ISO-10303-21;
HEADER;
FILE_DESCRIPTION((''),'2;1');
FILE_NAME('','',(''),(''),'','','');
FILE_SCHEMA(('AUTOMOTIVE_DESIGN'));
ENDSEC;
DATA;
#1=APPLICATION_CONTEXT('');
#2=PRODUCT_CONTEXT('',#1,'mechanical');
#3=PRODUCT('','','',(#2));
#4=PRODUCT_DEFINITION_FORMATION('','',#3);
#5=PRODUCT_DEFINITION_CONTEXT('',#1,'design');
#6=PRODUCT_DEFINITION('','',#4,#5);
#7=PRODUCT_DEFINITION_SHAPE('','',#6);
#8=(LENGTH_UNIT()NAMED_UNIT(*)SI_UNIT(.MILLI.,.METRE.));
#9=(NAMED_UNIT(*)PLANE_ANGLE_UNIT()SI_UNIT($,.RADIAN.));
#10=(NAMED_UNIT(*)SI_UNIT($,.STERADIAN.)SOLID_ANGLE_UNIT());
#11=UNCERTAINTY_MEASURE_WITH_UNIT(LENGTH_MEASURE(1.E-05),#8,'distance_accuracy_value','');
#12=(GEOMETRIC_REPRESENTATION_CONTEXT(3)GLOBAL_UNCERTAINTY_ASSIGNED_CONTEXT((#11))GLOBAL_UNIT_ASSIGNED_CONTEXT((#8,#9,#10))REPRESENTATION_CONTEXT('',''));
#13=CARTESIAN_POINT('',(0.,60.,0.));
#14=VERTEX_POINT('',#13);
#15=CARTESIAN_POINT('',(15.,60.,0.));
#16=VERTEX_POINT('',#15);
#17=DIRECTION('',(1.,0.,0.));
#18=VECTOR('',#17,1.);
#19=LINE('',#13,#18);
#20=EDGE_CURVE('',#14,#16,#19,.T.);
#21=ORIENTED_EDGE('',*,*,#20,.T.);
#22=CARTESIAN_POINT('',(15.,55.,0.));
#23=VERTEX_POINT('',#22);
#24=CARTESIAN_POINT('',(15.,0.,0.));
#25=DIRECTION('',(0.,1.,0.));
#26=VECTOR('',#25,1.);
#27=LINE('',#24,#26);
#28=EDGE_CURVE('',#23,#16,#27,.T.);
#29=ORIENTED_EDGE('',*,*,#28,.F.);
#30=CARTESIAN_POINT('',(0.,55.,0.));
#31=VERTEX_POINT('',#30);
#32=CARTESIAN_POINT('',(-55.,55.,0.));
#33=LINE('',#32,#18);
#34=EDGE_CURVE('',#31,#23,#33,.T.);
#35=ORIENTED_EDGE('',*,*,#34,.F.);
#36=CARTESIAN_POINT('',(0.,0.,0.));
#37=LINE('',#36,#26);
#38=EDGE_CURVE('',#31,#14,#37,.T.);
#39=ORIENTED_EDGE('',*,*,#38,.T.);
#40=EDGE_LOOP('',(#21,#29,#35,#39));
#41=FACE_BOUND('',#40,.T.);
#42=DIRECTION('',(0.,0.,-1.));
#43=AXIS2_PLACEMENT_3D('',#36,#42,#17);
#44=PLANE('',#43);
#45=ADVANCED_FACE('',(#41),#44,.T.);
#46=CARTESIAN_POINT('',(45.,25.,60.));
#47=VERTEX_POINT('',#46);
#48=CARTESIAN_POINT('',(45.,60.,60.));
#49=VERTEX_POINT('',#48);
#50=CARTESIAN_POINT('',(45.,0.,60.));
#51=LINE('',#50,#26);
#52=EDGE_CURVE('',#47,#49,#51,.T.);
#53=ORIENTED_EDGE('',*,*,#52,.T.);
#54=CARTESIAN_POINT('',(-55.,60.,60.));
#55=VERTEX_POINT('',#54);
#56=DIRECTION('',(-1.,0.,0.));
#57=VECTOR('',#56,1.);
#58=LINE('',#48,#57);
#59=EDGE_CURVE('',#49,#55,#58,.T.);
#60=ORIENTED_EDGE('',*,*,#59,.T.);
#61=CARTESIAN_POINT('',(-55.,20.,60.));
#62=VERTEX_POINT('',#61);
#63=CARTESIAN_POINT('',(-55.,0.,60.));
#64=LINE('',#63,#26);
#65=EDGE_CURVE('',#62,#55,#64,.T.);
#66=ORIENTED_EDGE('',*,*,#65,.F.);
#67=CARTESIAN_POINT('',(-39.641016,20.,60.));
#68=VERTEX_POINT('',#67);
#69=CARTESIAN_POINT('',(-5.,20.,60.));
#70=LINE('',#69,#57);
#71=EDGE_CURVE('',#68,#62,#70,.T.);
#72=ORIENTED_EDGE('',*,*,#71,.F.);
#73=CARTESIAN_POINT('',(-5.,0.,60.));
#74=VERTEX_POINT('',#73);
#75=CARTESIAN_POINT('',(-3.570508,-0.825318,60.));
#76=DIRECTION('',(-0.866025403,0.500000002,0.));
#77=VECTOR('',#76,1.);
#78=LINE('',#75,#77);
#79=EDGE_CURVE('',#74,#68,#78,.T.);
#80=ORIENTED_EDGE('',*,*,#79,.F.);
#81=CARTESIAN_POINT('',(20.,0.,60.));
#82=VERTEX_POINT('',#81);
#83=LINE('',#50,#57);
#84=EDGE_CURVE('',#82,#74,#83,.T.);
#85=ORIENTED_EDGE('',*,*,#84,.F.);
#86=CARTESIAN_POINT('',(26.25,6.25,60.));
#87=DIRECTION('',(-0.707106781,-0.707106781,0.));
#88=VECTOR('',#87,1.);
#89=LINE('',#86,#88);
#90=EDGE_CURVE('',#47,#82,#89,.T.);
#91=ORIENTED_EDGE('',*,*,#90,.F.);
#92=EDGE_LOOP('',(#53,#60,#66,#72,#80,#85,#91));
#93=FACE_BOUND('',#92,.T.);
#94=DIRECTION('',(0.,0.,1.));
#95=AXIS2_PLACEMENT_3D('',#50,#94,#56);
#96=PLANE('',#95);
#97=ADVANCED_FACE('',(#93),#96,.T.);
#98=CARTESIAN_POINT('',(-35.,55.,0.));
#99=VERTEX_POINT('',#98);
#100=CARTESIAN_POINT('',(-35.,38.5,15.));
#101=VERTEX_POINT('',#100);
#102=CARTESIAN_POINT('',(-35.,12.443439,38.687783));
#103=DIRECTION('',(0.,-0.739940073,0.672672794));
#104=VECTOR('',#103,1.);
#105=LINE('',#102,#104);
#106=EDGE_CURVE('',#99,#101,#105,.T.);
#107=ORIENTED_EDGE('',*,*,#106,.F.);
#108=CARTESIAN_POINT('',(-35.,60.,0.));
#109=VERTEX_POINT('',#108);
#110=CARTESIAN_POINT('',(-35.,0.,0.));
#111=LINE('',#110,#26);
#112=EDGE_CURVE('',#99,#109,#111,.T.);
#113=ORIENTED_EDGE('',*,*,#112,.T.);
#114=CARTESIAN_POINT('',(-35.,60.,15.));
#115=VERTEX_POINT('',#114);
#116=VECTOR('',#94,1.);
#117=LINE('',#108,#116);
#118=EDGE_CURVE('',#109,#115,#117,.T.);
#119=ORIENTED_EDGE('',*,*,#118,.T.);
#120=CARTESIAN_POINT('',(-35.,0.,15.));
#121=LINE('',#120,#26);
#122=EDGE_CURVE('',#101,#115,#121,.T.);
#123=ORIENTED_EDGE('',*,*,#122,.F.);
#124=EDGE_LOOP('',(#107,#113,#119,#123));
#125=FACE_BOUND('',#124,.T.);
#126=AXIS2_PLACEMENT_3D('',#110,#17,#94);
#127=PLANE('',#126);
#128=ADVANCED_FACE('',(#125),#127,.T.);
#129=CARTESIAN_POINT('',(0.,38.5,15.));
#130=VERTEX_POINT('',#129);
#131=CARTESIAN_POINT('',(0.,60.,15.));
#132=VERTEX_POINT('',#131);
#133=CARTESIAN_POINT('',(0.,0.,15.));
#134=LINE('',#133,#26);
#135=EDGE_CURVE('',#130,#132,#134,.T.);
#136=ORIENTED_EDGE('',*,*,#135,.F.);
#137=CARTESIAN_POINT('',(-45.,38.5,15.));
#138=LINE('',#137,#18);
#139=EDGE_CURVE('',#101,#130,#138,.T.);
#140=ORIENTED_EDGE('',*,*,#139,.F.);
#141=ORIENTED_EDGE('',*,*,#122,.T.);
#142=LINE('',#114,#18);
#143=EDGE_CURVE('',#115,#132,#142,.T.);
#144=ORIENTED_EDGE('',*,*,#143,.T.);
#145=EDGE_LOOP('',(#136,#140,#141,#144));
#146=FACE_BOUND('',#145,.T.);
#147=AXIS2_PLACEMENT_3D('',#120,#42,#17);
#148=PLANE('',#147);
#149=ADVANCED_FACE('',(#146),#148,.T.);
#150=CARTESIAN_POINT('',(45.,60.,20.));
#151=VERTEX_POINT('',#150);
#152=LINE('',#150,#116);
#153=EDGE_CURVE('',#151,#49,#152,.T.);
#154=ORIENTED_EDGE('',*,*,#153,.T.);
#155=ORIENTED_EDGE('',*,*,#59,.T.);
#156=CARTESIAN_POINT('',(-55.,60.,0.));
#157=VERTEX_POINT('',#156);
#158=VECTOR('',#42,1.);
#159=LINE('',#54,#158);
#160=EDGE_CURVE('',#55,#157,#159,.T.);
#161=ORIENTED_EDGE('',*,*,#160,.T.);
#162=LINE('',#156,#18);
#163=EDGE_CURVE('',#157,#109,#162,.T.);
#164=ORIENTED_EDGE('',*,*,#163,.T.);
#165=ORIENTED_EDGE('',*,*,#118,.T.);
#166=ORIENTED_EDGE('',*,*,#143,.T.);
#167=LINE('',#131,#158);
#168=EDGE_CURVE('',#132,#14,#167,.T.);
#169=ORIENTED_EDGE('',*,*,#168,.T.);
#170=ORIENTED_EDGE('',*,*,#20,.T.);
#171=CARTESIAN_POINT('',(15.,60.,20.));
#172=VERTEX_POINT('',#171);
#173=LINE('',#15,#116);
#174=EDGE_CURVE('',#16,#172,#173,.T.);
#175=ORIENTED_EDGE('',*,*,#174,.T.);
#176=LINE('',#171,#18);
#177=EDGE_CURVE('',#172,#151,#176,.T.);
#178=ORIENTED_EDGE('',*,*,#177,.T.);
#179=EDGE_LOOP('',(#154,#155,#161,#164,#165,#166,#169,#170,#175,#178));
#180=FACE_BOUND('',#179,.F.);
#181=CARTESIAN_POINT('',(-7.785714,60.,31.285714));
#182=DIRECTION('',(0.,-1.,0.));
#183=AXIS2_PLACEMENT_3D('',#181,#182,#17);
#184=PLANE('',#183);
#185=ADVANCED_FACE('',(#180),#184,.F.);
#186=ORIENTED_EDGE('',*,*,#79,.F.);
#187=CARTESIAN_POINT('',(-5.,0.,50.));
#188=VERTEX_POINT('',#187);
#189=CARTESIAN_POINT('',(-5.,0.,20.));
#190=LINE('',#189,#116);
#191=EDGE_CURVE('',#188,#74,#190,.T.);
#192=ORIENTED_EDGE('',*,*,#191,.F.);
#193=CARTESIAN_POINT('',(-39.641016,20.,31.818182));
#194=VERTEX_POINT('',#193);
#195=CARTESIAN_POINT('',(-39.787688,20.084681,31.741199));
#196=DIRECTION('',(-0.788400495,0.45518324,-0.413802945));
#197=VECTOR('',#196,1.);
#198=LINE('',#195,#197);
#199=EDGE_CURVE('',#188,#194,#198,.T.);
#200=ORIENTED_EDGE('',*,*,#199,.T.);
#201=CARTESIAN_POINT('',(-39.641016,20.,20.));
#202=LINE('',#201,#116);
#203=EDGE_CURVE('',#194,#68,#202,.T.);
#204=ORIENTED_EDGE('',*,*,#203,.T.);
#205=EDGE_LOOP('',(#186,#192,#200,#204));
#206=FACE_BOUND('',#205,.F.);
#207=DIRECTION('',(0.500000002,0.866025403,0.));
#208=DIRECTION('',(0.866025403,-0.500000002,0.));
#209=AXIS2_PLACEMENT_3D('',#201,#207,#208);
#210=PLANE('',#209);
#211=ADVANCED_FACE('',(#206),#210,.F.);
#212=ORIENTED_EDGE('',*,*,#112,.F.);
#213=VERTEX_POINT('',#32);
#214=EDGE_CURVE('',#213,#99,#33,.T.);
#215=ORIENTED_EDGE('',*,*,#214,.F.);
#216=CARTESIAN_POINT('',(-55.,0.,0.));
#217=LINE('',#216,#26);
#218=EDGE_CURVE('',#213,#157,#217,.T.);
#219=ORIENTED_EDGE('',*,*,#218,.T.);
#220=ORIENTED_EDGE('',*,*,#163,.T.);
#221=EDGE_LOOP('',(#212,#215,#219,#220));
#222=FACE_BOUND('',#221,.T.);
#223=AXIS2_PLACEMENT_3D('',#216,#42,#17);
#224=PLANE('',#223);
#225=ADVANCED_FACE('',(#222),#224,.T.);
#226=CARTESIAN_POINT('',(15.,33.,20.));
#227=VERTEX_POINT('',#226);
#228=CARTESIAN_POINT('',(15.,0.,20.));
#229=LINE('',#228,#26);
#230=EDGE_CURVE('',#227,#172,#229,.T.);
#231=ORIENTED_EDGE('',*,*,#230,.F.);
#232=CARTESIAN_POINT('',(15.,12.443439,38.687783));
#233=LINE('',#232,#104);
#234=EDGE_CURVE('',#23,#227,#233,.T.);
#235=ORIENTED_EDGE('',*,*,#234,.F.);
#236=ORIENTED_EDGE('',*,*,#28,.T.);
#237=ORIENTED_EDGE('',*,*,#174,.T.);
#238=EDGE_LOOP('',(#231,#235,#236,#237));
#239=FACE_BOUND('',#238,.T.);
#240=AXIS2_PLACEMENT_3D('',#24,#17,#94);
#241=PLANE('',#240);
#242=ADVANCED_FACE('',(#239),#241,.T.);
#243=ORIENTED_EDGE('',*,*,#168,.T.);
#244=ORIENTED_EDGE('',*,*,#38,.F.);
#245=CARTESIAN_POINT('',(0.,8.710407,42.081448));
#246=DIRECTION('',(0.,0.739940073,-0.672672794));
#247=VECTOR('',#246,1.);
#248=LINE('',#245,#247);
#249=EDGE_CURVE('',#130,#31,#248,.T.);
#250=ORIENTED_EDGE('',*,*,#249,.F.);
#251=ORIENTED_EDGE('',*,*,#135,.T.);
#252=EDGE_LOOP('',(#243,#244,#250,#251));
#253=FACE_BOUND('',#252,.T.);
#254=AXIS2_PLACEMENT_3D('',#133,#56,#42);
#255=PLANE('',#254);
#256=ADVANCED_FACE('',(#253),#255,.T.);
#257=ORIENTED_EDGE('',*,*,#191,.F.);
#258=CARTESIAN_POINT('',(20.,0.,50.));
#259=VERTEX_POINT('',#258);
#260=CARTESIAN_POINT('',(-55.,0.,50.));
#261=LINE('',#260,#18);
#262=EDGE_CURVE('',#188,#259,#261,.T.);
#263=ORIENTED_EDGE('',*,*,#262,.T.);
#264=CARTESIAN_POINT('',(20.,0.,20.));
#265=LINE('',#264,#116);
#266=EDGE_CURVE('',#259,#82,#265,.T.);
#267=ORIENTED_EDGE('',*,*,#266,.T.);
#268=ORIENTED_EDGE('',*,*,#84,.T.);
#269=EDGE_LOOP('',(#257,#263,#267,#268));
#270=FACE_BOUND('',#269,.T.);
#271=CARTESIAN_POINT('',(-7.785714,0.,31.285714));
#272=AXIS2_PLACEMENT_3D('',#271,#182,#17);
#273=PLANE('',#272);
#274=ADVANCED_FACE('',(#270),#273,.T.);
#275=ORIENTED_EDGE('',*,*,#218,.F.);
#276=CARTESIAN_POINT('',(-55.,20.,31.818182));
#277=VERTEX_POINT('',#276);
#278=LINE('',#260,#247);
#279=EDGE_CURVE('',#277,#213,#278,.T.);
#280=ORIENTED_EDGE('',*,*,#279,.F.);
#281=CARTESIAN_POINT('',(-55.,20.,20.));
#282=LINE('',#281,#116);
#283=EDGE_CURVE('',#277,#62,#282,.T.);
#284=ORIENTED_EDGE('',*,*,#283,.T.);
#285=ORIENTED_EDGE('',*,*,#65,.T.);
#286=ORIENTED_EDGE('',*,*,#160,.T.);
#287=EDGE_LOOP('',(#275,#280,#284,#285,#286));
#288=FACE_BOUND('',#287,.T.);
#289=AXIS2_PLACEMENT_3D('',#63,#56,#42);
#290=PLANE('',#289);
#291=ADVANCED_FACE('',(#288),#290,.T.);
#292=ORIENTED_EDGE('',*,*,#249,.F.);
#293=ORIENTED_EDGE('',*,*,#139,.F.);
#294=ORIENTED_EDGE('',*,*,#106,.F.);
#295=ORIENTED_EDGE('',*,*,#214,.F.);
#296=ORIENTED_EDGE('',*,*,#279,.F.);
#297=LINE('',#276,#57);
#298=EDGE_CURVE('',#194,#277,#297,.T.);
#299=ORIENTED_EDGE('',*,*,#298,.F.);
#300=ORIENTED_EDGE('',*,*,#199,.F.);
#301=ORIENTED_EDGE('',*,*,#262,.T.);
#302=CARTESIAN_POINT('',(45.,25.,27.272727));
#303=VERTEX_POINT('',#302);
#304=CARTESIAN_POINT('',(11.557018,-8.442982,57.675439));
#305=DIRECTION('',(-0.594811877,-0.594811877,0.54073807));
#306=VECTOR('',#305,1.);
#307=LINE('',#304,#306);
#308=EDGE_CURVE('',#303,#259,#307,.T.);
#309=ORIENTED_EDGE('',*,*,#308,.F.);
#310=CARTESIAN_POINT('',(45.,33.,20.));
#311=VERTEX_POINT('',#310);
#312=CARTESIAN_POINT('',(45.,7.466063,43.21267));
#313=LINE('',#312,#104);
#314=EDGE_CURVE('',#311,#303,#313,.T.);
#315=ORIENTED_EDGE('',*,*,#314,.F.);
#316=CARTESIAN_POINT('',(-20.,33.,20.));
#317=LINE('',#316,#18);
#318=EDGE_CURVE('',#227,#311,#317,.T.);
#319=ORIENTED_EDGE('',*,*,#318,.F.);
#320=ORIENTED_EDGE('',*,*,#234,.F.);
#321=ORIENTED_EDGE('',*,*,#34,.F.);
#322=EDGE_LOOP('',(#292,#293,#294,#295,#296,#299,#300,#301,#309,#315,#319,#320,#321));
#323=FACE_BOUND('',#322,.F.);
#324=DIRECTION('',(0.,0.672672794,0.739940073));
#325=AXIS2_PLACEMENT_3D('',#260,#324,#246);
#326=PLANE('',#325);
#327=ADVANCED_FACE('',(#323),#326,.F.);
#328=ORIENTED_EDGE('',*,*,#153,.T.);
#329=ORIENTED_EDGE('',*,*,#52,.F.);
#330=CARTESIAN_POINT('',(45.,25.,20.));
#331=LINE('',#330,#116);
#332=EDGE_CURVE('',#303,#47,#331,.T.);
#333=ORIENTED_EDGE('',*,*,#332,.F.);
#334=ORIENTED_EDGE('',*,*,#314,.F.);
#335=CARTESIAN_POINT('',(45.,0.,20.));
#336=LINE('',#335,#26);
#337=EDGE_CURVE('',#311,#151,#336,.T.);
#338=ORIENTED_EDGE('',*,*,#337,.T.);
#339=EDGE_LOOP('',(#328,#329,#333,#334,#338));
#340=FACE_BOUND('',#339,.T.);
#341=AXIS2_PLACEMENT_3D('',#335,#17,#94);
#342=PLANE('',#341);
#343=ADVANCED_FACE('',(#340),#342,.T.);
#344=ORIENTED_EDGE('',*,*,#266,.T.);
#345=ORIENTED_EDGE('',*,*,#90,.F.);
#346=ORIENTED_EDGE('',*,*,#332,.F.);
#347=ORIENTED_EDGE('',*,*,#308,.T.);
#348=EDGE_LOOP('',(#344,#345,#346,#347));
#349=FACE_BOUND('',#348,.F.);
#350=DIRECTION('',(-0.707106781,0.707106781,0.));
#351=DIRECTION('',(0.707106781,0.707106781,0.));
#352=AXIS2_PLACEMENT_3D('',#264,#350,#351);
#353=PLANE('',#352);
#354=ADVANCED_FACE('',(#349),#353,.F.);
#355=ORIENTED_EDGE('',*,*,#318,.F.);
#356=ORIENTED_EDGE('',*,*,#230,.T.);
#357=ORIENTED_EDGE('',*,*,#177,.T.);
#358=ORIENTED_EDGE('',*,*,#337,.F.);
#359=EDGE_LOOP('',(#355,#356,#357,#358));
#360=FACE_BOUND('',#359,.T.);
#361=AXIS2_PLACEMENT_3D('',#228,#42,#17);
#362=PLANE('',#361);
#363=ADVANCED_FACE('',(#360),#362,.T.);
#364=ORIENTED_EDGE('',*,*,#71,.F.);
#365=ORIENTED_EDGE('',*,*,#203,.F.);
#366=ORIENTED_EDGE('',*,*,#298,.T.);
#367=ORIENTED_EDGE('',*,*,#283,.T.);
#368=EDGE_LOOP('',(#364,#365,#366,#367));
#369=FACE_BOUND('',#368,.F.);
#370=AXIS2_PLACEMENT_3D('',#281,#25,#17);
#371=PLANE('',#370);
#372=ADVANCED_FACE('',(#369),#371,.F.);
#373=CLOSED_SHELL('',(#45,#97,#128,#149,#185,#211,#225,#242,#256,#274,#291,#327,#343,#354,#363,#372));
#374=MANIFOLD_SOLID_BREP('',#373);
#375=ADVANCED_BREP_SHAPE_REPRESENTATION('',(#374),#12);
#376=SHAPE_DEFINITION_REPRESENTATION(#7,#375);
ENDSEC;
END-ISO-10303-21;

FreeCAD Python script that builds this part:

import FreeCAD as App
import Part
import Sketcher
from FreeCAD import Vector
Q = App.Units.Quantity


def add_polygon(sketch, points):
    """Adds a closed chain of lines whose ends are joined by coincident constraints."""
    first, n = sketch.GeometryCount, len(points)
    for a, b in zip(points, points[1:] + points[:1]):
        sketch.addGeometry(Part.LineSegment(App.Vector(*a, 0), App.Vector(*b, 0)), False)
    for i in range(n):
        sketch.addConstraint(Sketcher.Constraint("Coincident", first + i, 2, first + (i + 1) % n, 1))

doc = App.newDocument("Part")
body = doc.addObject("PartDesign::Body", "Body")

# Sketch on XZ plane
sketch1 = body.newObject("Sketcher::SketchObject", "Sketch")
sketch1.AttachmentSupport = (doc.getObject("XZ_Plane"), [""])
sketch1.MapMode = "FlatFace"
add_polygon(sketch1, [(45, 60), (-55, 60), (-55, 0), (-35, 0), (-35, 15), (0, 15), (0, 0), (15, 0), (15, 20), (45, 20)])  # lines 0-9
sketch1.addConstraint([
    Sketcher.Constraint("Horizontal", 0),
    Sketcher.Constraint("Vertical", 1),
    Sketcher.Constraint("Horizontal", 2),
    Sketcher.Constraint("Vertical", 3),
    Sketcher.Constraint("Horizontal", 4),
    Sketcher.Constraint("Vertical", 5),
    Sketcher.Constraint("Horizontal", 6),
    Sketcher.Constraint("Vertical", 7),
    Sketcher.Constraint("Horizontal", 8),
    Sketcher.Constraint("Vertical", 9),
    Sketcher.Constraint("Coincident", 5, 2, -1, 1),
    Sketcher.Constraint("PointOnObject", 1, 2, -1),
    Sketcher.Constraint("Equal", 6, 3),
    Sketcher.Constraint("Equal", 2, 7),
    Sketcher.Constraint("DistanceX", 0, 2, 0, 1, Q("100 mm")),
    Sketcher.Constraint("DistanceX", 2, 1, 2, 2, Q("20 mm")),
    Sketcher.Constraint("DistanceX", 4, 1, 4, 2, Q("35 mm")),
    Sketcher.Constraint("DistanceX", 6, 1, 6, 2, Q("15 mm")),
    Sketcher.Constraint("DistanceY", 1, 2, 1, 1, Q("60 mm")),
])
pad1 = body.newObject("PartDesign::Pad", "Pad")
pad1.Profile = sketch1
pad1.Length = 60
pad1.Reversed = True

# Sketch on YZ plane
sketch2 = body.newObject("Sketcher::SketchObject", "Sketch001")
sketch2.AttachmentSupport = (doc.getObject("YZ_Plane"), [""])
sketch2.MapMode = "FlatFace"
sketch2.AttachmentOffset = App.Placement(Vector(0, 0, -55), App.Rotation())
add_polygon(sketch2, [(0, 0), (0, 50), (55, 0)])  # lines 0-2
sketch2.addConstraint([
    Sketcher.Constraint("Vertical", 0),
    Sketcher.Constraint("Horizontal", 2),
    Sketcher.Constraint("Coincident", 2, 2, -1, 1),
    Sketcher.Constraint("DistanceX", 2, 2, 2, 1, Q("55 mm")),
    Sketcher.Constraint("DistanceY", 0, 1, 0, 2, Q("50 mm")),
])
pocket1 = body.newObject("PartDesign::Pocket", "Pocket")
pocket1.Profile = sketch2
pocket1.Type = "ThroughAll"
pocket1.Reversed = True

# Sketch on XY plane
sketch3 = body.newObject("Sketcher::SketchObject", "Sketch002")
sketch3.AttachmentSupport = (doc.getObject("XY_Plane"), [""])
sketch3.MapMode = "FlatFace"
sketch3.AttachmentOffset = App.Placement(Vector(0, 0, 20), App.Rotation())
add_polygon(sketch3, [(-55, 0), (-55, 20), (-40, 20), (-5, 0)])  # lines 0-3
add_polygon(sketch3, [(45, 0), (20, 0), (45, 25)])  # lines 4-6
sketch3.addConstraint([
    Sketcher.Constraint("Vertical", 0),
    Sketcher.Constraint("Horizontal", 1),
    Sketcher.Constraint("Horizontal", 3),
    Sketcher.Constraint("Horizontal", 4),
    Sketcher.Constraint("Vertical", 6),
    Sketcher.Constraint("PointOnObject", 2, 2, -1),
    Sketcher.Constraint("PointOnObject", 4, 2, -1),
    Sketcher.Constraint("Equal", 4, 6),
    Sketcher.Constraint("DistanceX", 3, 2, 3, 1, Q("50 mm")),
    Sketcher.Constraint("DistanceX", 4, 2, 4, 1, Q("25 mm")),
    Sketcher.Constraint("DistanceY", 0, 1, 0, 2, Q("20 mm")),
    Sketcher.Constraint("Angle", 2, Q("-30 deg")),
    Sketcher.Constraint("DistanceX", 0, 2, -1, 1, Q("55 mm")),
    Sketcher.Constraint("DistanceX", -1, 1, 4, 2, Q("20 mm")),
])
pocket2 = body.newObject("PartDesign::Pocket", "Pocket001")
pocket2.Profile = sketch3
pocket2.Type = "ThroughAll"
pocket2.Reversed = True

doc.recompute()
